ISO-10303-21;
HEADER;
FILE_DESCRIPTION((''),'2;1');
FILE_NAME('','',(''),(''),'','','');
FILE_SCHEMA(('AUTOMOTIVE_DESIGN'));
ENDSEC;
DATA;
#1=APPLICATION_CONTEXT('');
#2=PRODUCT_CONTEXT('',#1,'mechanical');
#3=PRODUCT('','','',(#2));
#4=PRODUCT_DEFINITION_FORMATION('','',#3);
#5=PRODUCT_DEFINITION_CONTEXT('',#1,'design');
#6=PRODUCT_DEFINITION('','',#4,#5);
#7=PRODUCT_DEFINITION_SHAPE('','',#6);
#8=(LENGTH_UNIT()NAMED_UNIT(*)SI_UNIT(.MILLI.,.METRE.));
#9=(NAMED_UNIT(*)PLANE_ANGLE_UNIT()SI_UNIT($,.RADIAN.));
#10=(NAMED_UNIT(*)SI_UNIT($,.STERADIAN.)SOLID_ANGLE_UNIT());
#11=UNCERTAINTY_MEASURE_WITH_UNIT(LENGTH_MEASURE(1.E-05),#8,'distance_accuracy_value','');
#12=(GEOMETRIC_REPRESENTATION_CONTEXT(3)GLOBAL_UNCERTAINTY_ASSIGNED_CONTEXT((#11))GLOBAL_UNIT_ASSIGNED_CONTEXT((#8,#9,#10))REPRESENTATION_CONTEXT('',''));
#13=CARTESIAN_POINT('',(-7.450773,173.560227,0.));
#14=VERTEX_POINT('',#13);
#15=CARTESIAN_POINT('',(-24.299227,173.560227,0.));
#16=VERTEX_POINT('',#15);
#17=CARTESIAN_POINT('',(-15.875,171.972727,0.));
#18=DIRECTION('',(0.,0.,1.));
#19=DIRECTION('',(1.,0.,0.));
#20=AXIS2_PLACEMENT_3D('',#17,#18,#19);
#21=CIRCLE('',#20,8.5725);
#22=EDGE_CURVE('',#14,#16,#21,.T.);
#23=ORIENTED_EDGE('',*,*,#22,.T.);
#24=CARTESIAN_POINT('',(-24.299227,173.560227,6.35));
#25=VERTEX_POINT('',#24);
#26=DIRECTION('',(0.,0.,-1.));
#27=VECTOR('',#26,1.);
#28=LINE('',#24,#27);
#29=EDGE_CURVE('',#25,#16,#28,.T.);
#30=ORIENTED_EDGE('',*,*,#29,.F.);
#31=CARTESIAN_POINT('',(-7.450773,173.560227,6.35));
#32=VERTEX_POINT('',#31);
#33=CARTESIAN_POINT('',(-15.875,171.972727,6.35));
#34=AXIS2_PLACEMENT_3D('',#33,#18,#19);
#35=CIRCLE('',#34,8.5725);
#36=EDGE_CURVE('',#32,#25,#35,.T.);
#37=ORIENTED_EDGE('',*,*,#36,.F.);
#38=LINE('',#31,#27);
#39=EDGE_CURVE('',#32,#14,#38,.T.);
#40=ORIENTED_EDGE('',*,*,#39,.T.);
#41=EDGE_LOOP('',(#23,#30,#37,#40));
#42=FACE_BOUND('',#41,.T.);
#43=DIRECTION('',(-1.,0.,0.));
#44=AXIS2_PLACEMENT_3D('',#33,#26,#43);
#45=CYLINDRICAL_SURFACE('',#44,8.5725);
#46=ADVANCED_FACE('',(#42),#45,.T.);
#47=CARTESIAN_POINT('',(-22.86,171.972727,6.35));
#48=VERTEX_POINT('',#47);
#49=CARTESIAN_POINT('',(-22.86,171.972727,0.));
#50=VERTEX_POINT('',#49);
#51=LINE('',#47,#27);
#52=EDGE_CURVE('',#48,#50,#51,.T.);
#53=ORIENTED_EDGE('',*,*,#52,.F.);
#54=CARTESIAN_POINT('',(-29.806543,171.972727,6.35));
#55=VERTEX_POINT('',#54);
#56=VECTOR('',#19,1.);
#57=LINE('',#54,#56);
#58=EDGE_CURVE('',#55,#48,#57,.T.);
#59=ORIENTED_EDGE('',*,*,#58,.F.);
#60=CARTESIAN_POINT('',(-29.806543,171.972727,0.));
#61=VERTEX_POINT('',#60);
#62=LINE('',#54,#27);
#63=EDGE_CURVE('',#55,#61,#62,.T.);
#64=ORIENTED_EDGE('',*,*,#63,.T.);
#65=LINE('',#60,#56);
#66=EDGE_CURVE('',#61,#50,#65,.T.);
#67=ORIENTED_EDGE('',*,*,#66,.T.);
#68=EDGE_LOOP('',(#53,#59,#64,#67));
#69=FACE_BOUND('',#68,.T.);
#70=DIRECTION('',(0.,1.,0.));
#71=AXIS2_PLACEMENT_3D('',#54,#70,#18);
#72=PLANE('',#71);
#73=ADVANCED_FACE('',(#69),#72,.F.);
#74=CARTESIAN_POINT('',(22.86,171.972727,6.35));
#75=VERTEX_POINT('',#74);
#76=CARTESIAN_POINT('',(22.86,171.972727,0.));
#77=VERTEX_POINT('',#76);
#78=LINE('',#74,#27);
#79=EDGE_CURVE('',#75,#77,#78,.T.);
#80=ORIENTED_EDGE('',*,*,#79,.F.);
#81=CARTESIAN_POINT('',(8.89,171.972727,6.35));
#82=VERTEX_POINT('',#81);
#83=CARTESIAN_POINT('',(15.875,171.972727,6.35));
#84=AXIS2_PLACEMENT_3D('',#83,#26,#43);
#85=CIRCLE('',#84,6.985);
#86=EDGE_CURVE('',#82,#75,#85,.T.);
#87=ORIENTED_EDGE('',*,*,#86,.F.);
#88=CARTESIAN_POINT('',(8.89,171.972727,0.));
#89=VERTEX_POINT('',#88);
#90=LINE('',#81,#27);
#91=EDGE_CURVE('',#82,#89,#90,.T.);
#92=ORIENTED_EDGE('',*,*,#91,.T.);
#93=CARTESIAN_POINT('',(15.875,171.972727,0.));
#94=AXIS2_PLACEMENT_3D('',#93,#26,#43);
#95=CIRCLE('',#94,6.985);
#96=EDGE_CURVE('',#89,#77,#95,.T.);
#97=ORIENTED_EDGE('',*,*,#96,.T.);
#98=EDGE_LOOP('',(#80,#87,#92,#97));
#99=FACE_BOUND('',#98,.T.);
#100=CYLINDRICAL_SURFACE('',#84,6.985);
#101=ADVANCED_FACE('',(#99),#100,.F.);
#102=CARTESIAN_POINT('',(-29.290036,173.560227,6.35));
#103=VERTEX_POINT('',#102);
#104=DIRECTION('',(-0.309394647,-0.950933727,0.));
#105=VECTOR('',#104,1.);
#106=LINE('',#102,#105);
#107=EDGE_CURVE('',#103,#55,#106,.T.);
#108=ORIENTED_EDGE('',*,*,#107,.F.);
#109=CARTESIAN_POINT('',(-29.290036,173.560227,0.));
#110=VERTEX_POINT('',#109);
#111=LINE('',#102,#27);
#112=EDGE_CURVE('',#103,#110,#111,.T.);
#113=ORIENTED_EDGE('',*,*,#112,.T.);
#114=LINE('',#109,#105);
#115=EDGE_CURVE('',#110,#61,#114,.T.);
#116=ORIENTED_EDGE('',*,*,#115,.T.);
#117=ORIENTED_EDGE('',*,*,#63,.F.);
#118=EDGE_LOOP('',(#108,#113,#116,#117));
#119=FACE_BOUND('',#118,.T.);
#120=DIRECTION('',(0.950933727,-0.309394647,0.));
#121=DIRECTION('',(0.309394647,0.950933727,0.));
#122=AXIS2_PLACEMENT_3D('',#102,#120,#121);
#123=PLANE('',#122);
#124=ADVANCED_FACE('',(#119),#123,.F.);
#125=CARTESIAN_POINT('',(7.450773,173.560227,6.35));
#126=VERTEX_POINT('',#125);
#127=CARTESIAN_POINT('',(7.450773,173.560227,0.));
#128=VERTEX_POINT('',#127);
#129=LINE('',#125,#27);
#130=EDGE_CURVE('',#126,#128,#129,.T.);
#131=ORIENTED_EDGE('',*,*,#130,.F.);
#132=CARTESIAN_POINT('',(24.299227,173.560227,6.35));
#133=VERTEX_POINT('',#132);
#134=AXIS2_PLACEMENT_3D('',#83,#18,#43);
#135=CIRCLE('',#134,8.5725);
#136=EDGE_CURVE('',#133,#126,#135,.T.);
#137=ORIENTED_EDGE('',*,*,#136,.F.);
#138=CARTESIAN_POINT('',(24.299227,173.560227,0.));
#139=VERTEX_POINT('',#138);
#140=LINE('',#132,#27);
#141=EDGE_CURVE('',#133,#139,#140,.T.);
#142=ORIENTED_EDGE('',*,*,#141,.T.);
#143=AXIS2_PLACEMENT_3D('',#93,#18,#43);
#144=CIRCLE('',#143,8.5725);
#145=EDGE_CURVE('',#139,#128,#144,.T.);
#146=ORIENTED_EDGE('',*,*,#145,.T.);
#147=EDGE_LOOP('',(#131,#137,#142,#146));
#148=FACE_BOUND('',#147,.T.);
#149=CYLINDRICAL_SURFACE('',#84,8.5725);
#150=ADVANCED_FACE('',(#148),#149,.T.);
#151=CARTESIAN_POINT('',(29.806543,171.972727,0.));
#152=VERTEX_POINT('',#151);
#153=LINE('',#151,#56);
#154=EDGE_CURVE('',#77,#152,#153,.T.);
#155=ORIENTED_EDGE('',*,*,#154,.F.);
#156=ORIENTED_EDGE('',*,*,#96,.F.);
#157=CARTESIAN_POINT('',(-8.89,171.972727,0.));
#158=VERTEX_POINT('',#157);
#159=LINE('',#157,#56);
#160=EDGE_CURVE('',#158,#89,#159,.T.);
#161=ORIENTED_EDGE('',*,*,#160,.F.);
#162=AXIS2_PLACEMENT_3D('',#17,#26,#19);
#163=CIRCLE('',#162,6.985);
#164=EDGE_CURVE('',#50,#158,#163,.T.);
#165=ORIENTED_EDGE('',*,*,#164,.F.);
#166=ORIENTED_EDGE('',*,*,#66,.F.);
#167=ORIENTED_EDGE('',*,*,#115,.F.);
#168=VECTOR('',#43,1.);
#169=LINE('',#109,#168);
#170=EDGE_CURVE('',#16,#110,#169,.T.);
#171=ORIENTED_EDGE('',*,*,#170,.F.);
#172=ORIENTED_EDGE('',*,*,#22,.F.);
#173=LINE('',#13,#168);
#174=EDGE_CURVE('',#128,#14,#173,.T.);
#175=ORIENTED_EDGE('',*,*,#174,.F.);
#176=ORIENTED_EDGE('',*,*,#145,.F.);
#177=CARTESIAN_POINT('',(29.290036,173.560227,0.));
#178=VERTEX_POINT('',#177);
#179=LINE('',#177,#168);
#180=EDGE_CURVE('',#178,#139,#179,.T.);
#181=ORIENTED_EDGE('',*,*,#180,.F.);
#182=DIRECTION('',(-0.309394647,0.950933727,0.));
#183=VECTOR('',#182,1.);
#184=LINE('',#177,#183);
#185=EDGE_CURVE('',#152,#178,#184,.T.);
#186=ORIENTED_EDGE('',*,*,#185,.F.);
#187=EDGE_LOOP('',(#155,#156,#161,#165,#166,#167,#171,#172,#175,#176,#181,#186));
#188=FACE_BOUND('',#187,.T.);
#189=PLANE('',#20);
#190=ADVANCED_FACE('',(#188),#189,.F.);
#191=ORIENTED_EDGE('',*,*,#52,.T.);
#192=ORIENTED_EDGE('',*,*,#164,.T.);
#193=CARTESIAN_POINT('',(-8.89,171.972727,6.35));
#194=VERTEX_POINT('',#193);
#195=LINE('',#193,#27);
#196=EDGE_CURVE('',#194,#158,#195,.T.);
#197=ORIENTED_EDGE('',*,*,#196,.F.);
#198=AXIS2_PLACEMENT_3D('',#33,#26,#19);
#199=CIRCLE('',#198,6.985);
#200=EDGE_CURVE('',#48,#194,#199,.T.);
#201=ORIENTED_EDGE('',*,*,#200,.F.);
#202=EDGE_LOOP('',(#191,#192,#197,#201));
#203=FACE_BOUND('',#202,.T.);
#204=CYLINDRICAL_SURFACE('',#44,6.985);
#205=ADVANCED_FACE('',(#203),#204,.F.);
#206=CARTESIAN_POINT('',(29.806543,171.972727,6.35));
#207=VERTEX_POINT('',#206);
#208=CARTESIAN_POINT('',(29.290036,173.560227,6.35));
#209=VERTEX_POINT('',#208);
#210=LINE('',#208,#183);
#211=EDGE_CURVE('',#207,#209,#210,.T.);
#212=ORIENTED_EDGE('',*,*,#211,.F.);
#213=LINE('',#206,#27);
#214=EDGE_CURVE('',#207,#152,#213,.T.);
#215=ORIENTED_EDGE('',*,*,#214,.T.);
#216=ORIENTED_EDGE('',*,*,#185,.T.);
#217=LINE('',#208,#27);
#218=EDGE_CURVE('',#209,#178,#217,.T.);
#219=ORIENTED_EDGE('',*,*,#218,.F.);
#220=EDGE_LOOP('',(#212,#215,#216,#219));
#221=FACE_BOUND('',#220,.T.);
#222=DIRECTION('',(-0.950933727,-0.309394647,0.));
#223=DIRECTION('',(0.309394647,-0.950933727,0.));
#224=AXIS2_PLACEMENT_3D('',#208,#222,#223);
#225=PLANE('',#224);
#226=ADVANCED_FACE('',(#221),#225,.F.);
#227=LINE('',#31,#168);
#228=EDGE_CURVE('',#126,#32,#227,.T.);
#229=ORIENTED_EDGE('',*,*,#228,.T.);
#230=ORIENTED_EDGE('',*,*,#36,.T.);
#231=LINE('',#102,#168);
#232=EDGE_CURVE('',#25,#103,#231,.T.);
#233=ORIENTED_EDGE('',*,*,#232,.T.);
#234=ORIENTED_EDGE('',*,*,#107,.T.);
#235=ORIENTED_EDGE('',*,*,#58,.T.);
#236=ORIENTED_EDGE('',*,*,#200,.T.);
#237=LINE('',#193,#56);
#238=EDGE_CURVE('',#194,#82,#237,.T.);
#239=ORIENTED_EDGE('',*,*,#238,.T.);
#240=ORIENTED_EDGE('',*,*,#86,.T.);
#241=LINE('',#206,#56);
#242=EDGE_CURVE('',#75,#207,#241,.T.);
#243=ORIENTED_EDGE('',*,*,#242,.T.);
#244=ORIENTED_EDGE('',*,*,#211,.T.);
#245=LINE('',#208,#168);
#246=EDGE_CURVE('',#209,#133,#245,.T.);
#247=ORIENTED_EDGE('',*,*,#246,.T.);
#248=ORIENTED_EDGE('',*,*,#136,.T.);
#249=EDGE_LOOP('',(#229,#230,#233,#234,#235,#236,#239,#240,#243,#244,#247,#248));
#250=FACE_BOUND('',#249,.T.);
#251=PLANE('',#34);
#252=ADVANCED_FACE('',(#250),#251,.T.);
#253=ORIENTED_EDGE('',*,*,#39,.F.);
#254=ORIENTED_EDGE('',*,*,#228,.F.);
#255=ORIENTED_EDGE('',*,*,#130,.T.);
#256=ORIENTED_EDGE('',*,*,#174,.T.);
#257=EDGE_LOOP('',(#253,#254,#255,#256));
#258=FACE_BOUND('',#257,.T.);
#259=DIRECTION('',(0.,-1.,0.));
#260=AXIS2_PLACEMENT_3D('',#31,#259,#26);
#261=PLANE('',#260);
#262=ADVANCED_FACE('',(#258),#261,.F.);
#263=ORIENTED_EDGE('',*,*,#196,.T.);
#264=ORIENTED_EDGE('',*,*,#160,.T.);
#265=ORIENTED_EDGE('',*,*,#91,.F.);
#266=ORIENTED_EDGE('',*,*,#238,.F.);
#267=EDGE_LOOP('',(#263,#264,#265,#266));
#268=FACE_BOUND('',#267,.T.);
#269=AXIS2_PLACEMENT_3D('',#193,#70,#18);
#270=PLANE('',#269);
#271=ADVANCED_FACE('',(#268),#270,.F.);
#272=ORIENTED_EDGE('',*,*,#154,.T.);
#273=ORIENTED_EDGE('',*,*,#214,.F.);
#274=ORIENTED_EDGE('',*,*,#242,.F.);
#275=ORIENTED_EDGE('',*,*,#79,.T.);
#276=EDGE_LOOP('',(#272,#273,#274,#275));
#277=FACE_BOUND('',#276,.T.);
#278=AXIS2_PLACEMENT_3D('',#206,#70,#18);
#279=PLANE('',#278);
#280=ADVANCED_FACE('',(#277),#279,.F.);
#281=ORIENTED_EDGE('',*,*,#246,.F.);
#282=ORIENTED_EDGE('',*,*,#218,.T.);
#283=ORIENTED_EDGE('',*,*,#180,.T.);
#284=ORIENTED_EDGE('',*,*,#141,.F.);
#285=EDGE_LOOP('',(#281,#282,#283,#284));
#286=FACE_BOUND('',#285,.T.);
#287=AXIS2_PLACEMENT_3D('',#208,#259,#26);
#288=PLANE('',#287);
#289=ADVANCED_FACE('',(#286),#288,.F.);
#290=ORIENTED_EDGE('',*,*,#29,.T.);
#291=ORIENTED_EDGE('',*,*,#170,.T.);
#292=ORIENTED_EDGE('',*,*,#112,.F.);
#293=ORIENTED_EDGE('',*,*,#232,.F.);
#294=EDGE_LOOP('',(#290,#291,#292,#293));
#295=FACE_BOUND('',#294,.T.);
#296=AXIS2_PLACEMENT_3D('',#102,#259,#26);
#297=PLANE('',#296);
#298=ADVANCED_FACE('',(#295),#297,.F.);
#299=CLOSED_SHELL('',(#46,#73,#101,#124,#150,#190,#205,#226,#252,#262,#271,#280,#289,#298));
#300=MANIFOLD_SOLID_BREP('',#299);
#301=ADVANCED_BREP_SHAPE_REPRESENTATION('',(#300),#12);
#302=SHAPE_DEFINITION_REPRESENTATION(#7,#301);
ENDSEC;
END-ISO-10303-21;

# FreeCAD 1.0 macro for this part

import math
import FreeCAD as App
import Part
import Sketcher

V = App.Vector
Q = App.Units.Quantity

doc = App.newDocument("Part")
body = doc.addObject("PartDesign::Body", "Body")

# Sketch on XY plane
sketch1 = doc.addObject("Sketcher::SketchObject", "Sketch")
body.addObject(sketch1)
sketch1.AttachmentSupport = (doc.XY_Plane, [""])
sketch1.MapMode = "FlatFace"
sketch1.addGeometry(Part.LineSegment(V(-29.8, 172, 0), V(-22.9, 172, 0)), False)
sketch1.addGeometry(Part.ArcOfCircle(Part.Circle(V(-15.9, 172, 0), V(0, 0, 1), 7), math.radians(0), math.radians(180)), False)
sketch1.addGeometry(Part.LineSegment(V(-8.9, 172, 0), V(8.9, 172, 0)), False)
sketch1.addGeometry(Part.ArcOfCircle(Part.Circle(V(15.9, 172, 0), V(0, 0, 1), 7), math.radians(0), math.radians(180)), False)
sketch1.addGeometry(Part.LineSegment(V(22.9, 172, 0), V(29.8, 172, 0)), False)
sketch1.addGeometry(Part.LineSegment(V(29.8, 172, 0), V(29.3, 173.6, 0)), False)
sketch1.addGeometry(Part.LineSegment(V(29.3, 173.6, 0), V(24.3, 173.6, 0)), False)
sketch1.addGeometry(Part.ArcOfCircle(Part.Circle(V(15.9, 172, 0), V(0, 0, 1), 8.6), math.radians(11), math.radians(169)), False)
sketch1.addGeometry(Part.LineSegment(V(7.5, 173.6, 0), V(-7.5, 173.6, 0)), False)
sketch1.addGeometry(Part.ArcOfCircle(Part.Circle(V(-15.9, 172, 0), V(0, 0, 1), 8.6), math.radians(11), math.radians(169)), False)
sketch1.addGeometry(Part.LineSegment(V(-24.3, 173.6, 0), V(-29.3, 173.6, 0)), False)
sketch1.addGeometry(Part.LineSegment(V(-29.3, 173.6, 0), V(-29.8, 172, 0)), False)
sketch1.addConstraint(Sketcher.Constraint("Coincident", 0, 2, 1, 2))
sketch1.addConstraint(Sketcher.Constraint("Coincident", 1, 1, 2, 1))
sketch1.addConstraint(Sketcher.Constraint("Coincident", 2, 2, 3, 2))
sketch1.addConstraint(Sketcher.Constraint("Coincident", 3, 1, 4, 1))
sketch1.addConstraint(Sketcher.Constraint("Coincident", 4, 2, 5, 1))
sketch1.addConstraint(Sketcher.Constraint("Coincident", 5, 2, 6, 1))
sketch1.addConstraint(Sketcher.Constraint("Coincident", 6, 2, 7, 1))
sketch1.addConstraint(Sketcher.Constraint("Coincident", 7, 2, 8, 1))
sketch1.addConstraint(Sketcher.Constraint("Coincident", 8, 2, 9, 1))
sketch1.addConstraint(Sketcher.Constraint("Coincident", 9, 2, 10, 1))
sketch1.addConstraint(Sketcher.Constraint("Coincident", 10, 2, 11, 1))
sketch1.addConstraint(Sketcher.Constraint("Coincident", 11, 2, 0, 1))
sketch1.addConstraint(Sketcher.Constraint("Horizontal", 0))
sketch1.addConstraint(Sketcher.Constraint("Horizontal", 2))
sketch1.addConstraint(Sketcher.Constraint("Horizontal", 4))
sketch1.addConstraint(Sketcher.Constraint("Horizontal", 6))
sketch1.addConstraint(Sketcher.Constraint("Horizontal", 8))
sketch1.addConstraint(Sketcher.Constraint("Horizontal", 10))
sketch1.addConstraint(Sketcher.Constraint("Coincident", 7, 3, 3, 3))
sketch1.addConstraint(Sketcher.Constraint("Coincident", 9, 3, 1, 3))
sketch1.addConstraint(Sketcher.Constraint("Equal", 1, 3))
sketch1.addConstraint(Sketcher.Constraint("Equal", 7, 9))
sketch1.addConstraint(Sketcher.Constraint("Symmetric", 1, 3, 3, 3, -2))
sketch1.addConstraint(Sketcher.Constraint("Symmetric", 5, 2, 10, 2, -2))
sketch1.addConstraint(Sketcher.Constraint("Symmetric", 4, 2, 11, 2, -2))
sketch1.addConstraint(Sketcher.Constraint("Horizontal", 9, 3, 0, 2))
sketch1.addConstraint(Sketcher.Constraint("Horizontal", 0, 2, 1, 1))
sketch1.addConstraint(Sketcher.Constraint("Horizontal", 6, 2, 7, 2))
sketch1.addConstraint(Sketcher.Constraint("DistanceX", 2, 1, 2, 2, Q("0.7 in")))
sketch1.addConstraint(Sketcher.Constraint("Radius", 1, Q("0.275 in")))
sketch1.addConstraint(Sketcher.Constraint("Radius", 7, Q("0.3375 in")))
sketch1.addConstraint(Sketcher.Constraint("DistanceY", 4, 2, 5, 2, Q("0.0625 in")))
sketch1.addConstraint(Sketcher.Constraint("DistanceX", 6, 2, 6, 1, Q("4.990809 mm")))
sketch1.addConstraint(Sketcher.Constraint("Distance", 5, Q("1.669412 mm")))
sketch1.addConstraint(Sketcher.Constraint("DistanceY", -1, 1, 1, 3, Q("171.972727 mm")))
pad1 = doc.addObject("PartDesign::Pad", "Pad")
body.addObject(pad1)
pad1.Profile = sketch1
pad1.Length = Q("0.25 in")

doc.recompute()
